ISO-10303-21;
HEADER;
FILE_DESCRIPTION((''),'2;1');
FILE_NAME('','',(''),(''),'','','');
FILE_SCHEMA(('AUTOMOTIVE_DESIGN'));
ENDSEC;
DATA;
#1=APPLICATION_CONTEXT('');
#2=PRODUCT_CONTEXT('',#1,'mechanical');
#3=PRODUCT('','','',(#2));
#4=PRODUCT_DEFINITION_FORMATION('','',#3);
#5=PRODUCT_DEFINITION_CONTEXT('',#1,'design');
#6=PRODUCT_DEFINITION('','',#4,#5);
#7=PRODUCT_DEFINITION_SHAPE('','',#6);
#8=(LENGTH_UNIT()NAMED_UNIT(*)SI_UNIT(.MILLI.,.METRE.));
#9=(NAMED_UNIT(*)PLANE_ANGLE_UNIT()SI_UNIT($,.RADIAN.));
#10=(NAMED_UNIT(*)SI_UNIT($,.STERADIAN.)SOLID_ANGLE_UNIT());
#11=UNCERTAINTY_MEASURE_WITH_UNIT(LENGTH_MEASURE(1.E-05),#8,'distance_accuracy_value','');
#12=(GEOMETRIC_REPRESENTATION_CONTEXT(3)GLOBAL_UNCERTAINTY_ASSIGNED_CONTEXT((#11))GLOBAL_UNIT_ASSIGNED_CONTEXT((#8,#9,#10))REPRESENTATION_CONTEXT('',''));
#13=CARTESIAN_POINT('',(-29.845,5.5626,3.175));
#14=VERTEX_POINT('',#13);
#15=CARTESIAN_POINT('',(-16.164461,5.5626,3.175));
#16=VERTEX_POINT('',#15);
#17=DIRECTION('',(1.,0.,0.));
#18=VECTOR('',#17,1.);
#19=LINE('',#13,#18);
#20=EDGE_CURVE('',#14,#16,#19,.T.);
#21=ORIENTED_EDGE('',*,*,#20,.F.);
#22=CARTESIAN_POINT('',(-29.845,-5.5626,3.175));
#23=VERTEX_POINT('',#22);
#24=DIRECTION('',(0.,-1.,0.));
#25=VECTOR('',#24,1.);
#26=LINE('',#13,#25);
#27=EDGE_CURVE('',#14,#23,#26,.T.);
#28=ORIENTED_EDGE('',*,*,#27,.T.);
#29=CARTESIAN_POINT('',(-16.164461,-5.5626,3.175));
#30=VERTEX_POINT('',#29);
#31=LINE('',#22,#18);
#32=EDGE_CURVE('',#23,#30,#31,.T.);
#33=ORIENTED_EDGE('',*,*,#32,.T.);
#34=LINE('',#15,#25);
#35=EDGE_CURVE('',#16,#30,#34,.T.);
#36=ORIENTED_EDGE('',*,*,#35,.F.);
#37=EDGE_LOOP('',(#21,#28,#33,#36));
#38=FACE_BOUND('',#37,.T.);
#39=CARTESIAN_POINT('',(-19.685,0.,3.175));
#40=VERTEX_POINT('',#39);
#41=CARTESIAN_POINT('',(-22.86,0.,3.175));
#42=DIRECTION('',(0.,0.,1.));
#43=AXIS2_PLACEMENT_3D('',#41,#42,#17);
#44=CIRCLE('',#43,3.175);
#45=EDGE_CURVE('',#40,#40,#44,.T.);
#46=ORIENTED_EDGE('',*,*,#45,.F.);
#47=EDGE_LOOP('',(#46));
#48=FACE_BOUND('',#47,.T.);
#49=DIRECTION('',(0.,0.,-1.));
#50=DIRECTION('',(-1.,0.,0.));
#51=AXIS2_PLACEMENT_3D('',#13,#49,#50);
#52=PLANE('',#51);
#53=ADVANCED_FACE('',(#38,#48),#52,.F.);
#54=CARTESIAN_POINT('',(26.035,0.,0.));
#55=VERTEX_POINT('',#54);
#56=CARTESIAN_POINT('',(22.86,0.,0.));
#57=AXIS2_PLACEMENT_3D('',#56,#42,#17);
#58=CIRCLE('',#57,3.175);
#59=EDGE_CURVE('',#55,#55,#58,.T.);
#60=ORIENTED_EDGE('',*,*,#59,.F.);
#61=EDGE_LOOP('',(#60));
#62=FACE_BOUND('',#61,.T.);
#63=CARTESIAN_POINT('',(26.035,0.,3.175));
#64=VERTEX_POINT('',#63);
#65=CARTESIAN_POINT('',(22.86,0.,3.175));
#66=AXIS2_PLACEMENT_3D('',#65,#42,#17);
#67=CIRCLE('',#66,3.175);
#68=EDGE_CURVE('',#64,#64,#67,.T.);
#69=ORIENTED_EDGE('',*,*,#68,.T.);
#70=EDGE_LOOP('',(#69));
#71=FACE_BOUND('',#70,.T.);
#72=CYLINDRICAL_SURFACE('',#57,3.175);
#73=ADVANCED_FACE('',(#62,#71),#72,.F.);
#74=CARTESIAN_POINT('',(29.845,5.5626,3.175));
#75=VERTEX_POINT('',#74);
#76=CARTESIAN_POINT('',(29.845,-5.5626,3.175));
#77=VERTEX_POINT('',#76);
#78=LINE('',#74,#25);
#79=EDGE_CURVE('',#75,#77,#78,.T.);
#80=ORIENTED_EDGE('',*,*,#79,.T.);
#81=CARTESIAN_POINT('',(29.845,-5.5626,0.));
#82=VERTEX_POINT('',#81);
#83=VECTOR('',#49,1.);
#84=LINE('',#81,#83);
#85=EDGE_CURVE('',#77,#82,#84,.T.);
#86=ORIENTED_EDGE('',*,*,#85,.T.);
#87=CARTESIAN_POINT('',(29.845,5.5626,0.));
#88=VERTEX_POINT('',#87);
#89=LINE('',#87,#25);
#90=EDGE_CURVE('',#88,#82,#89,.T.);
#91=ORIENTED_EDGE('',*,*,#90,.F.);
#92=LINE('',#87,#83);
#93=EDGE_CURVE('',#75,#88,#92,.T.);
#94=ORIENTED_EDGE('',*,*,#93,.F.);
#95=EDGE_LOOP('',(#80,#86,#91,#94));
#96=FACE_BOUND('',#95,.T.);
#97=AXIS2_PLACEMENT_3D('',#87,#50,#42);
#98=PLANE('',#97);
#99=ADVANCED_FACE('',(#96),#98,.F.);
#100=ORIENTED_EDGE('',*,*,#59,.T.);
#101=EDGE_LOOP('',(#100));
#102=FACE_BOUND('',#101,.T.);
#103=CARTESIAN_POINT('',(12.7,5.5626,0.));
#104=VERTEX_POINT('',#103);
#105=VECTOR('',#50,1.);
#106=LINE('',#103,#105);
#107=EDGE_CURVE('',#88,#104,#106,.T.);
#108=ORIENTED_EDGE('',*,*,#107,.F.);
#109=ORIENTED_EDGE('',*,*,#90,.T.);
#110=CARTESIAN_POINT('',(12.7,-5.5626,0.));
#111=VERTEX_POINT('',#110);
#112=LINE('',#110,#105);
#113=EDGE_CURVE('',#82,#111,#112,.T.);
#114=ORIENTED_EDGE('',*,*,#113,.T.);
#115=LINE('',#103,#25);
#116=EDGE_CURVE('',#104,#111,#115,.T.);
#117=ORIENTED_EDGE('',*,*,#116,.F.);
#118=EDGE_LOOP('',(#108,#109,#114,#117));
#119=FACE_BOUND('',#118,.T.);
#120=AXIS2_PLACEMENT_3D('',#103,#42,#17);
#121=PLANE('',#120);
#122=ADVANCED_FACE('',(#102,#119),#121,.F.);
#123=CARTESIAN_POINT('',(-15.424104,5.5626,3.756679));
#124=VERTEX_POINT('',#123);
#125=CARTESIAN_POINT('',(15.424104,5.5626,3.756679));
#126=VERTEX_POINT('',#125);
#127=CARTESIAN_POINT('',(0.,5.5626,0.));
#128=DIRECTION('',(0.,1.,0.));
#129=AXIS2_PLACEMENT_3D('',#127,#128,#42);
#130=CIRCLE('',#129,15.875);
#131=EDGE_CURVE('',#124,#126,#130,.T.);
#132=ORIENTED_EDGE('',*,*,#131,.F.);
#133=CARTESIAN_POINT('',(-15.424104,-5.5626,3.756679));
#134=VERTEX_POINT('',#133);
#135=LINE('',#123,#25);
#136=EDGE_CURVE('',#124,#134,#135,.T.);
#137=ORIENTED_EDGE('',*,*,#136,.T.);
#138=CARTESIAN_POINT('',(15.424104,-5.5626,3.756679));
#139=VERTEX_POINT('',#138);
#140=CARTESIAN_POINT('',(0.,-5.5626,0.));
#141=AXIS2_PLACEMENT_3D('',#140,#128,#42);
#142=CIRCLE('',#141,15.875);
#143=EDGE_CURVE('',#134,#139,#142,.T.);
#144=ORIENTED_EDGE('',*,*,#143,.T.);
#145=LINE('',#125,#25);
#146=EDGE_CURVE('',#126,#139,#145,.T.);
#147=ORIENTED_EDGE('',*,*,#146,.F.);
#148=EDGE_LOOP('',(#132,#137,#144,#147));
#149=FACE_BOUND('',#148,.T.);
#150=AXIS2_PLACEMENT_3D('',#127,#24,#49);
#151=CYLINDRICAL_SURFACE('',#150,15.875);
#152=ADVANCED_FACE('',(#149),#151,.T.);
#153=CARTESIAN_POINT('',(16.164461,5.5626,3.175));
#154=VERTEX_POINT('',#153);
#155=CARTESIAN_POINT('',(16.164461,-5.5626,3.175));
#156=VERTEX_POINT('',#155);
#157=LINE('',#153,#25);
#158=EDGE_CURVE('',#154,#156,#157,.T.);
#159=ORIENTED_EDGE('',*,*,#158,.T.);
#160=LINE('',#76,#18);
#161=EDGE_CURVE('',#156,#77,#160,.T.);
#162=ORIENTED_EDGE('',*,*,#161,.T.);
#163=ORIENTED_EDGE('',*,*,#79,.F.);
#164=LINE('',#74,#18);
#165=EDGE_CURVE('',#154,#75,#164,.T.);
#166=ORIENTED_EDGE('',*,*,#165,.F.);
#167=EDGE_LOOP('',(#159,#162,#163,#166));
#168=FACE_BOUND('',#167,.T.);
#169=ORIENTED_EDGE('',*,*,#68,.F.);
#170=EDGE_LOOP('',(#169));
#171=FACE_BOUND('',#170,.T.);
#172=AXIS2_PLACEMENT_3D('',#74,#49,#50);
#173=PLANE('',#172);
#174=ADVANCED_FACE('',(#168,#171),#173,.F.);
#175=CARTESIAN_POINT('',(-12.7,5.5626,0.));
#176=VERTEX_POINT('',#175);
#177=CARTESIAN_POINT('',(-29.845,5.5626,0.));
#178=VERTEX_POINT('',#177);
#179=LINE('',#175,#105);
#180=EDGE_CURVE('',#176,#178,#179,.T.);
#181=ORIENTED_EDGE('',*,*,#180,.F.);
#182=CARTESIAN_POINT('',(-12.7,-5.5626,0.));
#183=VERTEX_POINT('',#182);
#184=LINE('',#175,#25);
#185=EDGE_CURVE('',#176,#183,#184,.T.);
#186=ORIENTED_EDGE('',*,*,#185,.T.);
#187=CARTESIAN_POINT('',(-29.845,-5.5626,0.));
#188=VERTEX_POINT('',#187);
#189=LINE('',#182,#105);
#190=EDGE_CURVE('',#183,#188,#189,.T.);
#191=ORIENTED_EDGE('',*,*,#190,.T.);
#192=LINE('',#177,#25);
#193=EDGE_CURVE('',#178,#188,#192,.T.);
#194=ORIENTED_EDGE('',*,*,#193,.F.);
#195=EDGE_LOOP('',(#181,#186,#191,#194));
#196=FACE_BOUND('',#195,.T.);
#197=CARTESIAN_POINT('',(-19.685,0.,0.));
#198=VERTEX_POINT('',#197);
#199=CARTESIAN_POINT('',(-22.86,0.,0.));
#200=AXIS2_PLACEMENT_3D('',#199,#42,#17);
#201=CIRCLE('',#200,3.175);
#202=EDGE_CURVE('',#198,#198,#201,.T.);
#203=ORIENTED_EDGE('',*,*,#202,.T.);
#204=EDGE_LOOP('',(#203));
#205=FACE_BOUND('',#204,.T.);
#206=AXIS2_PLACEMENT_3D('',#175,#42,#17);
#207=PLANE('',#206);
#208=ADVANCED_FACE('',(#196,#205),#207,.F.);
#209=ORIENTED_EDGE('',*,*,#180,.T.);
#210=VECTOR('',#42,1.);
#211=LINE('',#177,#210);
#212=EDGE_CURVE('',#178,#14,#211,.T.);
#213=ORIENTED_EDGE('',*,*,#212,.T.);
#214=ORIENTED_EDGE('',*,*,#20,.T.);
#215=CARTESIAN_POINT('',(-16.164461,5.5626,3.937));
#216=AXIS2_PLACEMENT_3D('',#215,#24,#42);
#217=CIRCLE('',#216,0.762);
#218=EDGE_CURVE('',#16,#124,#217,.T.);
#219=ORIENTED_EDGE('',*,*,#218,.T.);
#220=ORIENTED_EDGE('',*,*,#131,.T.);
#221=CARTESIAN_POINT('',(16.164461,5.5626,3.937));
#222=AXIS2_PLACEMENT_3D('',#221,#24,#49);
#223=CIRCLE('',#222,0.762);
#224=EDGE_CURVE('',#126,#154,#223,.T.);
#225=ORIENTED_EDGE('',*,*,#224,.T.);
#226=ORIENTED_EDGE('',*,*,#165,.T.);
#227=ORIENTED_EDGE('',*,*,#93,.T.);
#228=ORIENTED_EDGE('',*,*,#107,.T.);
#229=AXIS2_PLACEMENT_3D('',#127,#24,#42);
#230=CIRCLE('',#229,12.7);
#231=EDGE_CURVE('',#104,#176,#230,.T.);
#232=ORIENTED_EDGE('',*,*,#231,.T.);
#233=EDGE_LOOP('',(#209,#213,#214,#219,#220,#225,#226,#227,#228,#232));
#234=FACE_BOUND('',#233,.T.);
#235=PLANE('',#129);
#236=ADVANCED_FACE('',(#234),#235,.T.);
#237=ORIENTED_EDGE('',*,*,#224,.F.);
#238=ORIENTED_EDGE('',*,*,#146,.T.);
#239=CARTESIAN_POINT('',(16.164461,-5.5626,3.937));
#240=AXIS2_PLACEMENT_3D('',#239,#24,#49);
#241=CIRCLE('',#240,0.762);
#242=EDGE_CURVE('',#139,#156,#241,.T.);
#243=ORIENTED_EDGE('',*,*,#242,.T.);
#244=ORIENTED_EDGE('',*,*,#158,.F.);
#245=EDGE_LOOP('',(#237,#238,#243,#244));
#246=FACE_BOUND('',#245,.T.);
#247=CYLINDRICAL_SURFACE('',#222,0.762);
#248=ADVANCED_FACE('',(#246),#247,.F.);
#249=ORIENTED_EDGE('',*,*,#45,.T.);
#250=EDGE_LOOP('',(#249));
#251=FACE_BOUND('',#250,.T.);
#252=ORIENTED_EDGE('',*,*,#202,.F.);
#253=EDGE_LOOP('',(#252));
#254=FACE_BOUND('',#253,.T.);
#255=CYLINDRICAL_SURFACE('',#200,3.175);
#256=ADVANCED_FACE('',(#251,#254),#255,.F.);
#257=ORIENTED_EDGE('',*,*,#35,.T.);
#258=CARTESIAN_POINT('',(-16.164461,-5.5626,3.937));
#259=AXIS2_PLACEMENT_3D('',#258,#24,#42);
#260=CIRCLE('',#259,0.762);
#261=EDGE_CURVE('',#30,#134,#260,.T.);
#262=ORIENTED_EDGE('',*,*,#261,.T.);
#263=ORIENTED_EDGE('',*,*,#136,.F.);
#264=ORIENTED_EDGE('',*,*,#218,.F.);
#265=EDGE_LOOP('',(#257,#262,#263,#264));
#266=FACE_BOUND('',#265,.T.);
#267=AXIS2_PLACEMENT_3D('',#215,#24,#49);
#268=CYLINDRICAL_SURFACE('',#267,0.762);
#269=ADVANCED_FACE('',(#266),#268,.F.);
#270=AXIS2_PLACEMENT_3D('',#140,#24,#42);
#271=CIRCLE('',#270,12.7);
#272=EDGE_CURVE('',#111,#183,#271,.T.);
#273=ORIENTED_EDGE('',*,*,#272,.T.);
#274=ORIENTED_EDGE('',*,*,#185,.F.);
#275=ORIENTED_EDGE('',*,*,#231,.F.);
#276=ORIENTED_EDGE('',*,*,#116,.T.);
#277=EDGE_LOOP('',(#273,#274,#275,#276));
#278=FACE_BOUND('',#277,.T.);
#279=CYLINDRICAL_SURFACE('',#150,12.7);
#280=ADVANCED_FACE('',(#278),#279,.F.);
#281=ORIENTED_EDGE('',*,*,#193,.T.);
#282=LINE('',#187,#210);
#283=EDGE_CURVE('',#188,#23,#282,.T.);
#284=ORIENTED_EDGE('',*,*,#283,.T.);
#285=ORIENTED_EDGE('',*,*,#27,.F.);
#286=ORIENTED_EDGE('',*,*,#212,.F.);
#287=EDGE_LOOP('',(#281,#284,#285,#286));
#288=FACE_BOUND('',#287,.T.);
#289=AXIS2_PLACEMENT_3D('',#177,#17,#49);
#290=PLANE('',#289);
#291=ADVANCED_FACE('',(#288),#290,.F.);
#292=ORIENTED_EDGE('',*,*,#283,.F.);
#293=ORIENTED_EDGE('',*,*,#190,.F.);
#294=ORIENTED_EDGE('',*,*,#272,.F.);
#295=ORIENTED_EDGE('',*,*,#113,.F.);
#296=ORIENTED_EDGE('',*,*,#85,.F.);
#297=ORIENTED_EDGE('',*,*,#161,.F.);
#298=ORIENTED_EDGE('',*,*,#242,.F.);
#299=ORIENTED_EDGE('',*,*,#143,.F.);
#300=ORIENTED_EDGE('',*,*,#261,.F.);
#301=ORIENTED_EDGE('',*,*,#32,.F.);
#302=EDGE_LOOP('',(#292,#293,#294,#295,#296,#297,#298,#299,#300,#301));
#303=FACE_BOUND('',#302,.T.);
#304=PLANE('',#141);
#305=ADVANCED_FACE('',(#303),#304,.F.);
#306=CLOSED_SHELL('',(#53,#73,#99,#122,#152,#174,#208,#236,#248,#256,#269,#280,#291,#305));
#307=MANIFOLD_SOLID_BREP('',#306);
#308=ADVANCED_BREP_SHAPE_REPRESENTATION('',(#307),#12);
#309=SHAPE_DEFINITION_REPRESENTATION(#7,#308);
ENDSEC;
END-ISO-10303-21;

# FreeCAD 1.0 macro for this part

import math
import FreeCAD as App
import Part
import Sketcher

V = App.Vector
Q = App.Units.Quantity

doc = App.newDocument("Part")
body = doc.addObject("PartDesign::Body", "Body")

# Sketch on XZ plane
sketch1 = doc.addObject("Sketcher::SketchObject", "Sketch")
body.addObject(sketch1)
sketch1.AttachmentSupport = (doc.XZ_Plane, [""])
sketch1.MapMode = "FlatFace"
sketch1.addGeometry(Part.LineSegment(V(-12.7, 0, 0), V(-29.8, 0, 0)), False)
sketch1.addGeometry(Part.LineSegment(V(-29.8, 0, 0), V(-29.8, 3.2, 0)), False)
sketch1.addGeometry(Part.LineSegment(V(-29.8, 3.2, 0), V(-16.2, 3.2, 0)), False)
sketch1.addGeometry(Part.ArcOfCircle(Part.Circle(V(-16.2, 3.9, 0), V(0, 0, 1), 0.8), math.radians(-90), math.radians(-14)), False)
sketch1.addGeometry(Part.ArcOfCircle(Part.Circle(V(0, 0, 0), V(0, 0, 1), 15.9), math.radians(14), math.radians(166)), False)
sketch1.addGeometry(Part.ArcOfCircle(Part.Circle(V(16.2, 3.9, 0), V(0, 0, 1), 0.8), math.radians(-166), math.radians(-90)), False)
sketch1.addGeometry(Part.LineSegment(V(16.2, 3.2, 0), V(29.8, 3.2, 0)), False)
sketch1.addGeometry(Part.LineSegment(V(29.8, 3.2, 0), V(29.8, 0, 0)), False)
sketch1.addGeometry(Part.LineSegment(V(29.8, 0, 0), V(12.7, 0, 0)), False)
sketch1.addGeometry(Part.ArcOfCircle(Part.Circle(V(0, 0, 0), V(0, 0, 1), 12.7), math.radians(0), math.radians(180)), False)
sketch1.addConstraint(Sketcher.Constraint("Coincident", 0, 2, 1, 1))
sketch1.addConstraint(Sketcher.Constraint("Coincident", 1, 2, 2, 1))
sketch1.addConstraint(Sketcher.Constraint("Tangent", 2, 2, 3, 1))
sketch1.addConstraint(Sketcher.Constraint("Tangent", 3, 2, 4, 2))
sketch1.addConstraint(Sketcher.Constraint("Tangent", 4, 1, 5, 1))
sketch1.addConstraint(Sketcher.Constraint("Tangent", 5, 2, 6, 1))
sketch1.addConstraint(Sketcher.Constraint("Coincident", 6, 2, 7, 1))
sketch1.addConstraint(Sketcher.Constraint("Coincident", 7, 2, 8, 1))
sketch1.addConstraint(Sketcher.Constraint("Coincident", 8, 2, 9, 1))
sketch1.addConstraint(Sketcher.Constraint("Coincident", 9, 2, 0, 1))
sketch1.addConstraint(Sketcher.Constraint("Horizontal", 0))
sketch1.addConstraint(Sketcher.Constraint("Vertical", 1))
sketch1.addConstraint(Sketcher.Constraint("Horizontal", 2))
sketch1.addConstraint(Sketcher.Constraint("Horizontal", 6))
sketch1.addConstraint(Sketcher.Constraint("Vertical", 7))
sketch1.addConstraint(Sketcher.Constraint("Horizontal", 8))
sketch1.addConstraint(Sketcher.Constraint("Coincident", 4, 3, -1, 1))
sketch1.addConstraint(Sketcher.Constraint("Coincident", 9, 3, -1, 1))
sketch1.addConstraint(Sketcher.Constraint("Equal", 3, 5))
sketch1.addConstraint(Sketcher.Constraint("Symmetric", 0, 2, 7, 2, -1, 1))
sketch1.addConstraint(Sketcher.Constraint("PointOnObject", 0, 2, -1))
sketch1.addConstraint(Sketcher.Constraint("Horizontal", 3, 3, 5, 3))
sketch1.addConstraint(Sketcher.Constraint("Radius", 9, Q("0.5 in")))
sketch1.addConstraint(Sketcher.Constraint("Radius", 3, Q("0.03 in")))
sketch1.addConstraint(Sketcher.Constraint("Radius", 4, Q("0.625 in")))
sketch1.addConstraint(Sketcher.Constraint("DistanceX", 0, 2, 0, 1, Q("0.675 in")))
sketch1.addConstraint(Sketcher.Constraint("DistanceY", 1, 1, 1, 2, Q("0.125 in")))
pad1 = doc.addObject("PartDesign::Pad", "Pad")
body.addObject(pad1)
pad1.Profile = sketch1
pad1.Length = Q("0.438 in")
pad1.Midplane = True

# Sketch on XY plane
sketch2 = doc.addObject("Sketcher::SketchObject", "Sketch001")
body.addObject(sketch2)
sketch2.AttachmentSupport = (doc.XY_Plane, [""])
sketch2.MapMode = "FlatFace"
sketch2.AttachmentOffset = App.Placement(V(0, 0, 0.125 * 25.4), App.Rotation())
sketch2.addGeometry(Part.Circle(V(-22.9, 0, 0), V(0, 0, 1), 3.2), False)
sketch2.addGeometry(Part.Circle(V(22.9, 0, 0), V(0, 0, 1), 3.2), False)
sketch2.addConstraint(Sketcher.Constraint("Equal", 0, 1))
sketch2.addConstraint(Sketcher.Constraint("Symmetric", 0, 3, 1, 3, -1, 1))
sketch2.addConstraint(Sketcher.Constraint("PointOnObject", 0, 3, -1))
sketch2.addConstraint(Sketcher.Constraint("Diameter", 0, Q("0.25 in")))
sketch2.addConstraint(Sketcher.Constraint("DistanceX", 0, 3, -1, 1, Q("0.9 in")))
pocket1 = doc.addObject("PartDesign::Pocket", "Pocket")
body.addObject(pocket1)
pocket1.Profile = sketch2
pocket1.Type = "ThroughAll"

doc.recompute()
